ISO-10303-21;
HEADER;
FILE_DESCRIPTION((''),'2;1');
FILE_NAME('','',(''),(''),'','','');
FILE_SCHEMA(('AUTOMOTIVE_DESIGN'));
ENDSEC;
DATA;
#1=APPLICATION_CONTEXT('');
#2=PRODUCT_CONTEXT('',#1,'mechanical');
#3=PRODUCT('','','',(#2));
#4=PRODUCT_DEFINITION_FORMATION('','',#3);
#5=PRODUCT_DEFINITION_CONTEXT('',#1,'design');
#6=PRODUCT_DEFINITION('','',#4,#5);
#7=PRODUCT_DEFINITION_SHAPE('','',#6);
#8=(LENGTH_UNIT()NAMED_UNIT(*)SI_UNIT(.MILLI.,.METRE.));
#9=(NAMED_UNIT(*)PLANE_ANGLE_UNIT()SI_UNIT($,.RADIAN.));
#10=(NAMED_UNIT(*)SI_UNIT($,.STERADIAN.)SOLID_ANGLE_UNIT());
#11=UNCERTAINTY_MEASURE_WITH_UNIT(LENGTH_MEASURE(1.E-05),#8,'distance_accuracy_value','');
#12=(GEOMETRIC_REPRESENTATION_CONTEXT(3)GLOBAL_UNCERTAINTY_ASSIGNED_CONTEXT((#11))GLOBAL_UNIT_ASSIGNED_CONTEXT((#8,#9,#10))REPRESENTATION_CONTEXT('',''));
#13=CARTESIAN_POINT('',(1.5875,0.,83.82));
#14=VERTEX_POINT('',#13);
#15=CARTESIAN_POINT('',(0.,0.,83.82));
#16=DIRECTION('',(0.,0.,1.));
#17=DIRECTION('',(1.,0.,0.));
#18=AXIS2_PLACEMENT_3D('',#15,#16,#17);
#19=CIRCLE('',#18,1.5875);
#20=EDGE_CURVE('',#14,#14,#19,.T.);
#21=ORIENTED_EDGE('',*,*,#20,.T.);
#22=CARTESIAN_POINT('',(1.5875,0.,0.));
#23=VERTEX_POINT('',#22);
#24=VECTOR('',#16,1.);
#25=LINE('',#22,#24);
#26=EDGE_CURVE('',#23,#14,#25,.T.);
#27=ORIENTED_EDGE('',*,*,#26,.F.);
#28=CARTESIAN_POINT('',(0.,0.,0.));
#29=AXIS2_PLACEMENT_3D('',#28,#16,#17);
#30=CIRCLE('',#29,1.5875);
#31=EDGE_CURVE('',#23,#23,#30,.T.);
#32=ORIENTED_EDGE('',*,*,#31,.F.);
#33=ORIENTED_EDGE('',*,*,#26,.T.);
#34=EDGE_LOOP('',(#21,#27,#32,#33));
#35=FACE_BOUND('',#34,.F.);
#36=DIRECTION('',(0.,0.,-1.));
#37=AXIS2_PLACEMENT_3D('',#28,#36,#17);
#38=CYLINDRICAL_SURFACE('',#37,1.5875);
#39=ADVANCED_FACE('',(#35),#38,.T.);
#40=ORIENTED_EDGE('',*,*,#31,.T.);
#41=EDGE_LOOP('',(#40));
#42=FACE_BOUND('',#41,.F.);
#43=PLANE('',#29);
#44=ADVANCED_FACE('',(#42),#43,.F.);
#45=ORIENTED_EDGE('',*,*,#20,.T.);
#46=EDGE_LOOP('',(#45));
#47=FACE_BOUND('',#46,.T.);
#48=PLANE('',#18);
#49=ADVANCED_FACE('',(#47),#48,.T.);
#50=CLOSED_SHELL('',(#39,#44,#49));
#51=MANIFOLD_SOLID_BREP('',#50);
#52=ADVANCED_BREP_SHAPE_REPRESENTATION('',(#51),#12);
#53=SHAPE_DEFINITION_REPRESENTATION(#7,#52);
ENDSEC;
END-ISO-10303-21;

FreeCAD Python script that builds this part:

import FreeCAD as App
import Part
import Sketcher
Q = App.Units.Quantity

doc = App.newDocument("Part")
body = doc.addObject("PartDesign::Body", "Body")

# Sketch on XY plane
sketch1 = doc.addObject("Sketcher::SketchObject", "Sketch")
body.addObject(sketch1)
sketch1.AttachmentSupport = (doc.XY_Plane, [""])
sketch1.MapMode = "FlatFace"
sketch1.addGeometry(Part.Circle(App.Vector(0, 0, 0), App.Vector(0, 0, 1), 1.6), False)
sketch1.addConstraint([
    Sketcher.Constraint("Coincident", 0, 3, -1, 1),
    Sketcher.Constraint("Diameter", 0, Q("0.125 in")),
])
pad1 = doc.addObject("PartDesign::Pad", "Pad")
body.addObject(pad1)
pad1.Profile = sketch1
pad1.Length = Q("3.3 in")

doc.recompute()
